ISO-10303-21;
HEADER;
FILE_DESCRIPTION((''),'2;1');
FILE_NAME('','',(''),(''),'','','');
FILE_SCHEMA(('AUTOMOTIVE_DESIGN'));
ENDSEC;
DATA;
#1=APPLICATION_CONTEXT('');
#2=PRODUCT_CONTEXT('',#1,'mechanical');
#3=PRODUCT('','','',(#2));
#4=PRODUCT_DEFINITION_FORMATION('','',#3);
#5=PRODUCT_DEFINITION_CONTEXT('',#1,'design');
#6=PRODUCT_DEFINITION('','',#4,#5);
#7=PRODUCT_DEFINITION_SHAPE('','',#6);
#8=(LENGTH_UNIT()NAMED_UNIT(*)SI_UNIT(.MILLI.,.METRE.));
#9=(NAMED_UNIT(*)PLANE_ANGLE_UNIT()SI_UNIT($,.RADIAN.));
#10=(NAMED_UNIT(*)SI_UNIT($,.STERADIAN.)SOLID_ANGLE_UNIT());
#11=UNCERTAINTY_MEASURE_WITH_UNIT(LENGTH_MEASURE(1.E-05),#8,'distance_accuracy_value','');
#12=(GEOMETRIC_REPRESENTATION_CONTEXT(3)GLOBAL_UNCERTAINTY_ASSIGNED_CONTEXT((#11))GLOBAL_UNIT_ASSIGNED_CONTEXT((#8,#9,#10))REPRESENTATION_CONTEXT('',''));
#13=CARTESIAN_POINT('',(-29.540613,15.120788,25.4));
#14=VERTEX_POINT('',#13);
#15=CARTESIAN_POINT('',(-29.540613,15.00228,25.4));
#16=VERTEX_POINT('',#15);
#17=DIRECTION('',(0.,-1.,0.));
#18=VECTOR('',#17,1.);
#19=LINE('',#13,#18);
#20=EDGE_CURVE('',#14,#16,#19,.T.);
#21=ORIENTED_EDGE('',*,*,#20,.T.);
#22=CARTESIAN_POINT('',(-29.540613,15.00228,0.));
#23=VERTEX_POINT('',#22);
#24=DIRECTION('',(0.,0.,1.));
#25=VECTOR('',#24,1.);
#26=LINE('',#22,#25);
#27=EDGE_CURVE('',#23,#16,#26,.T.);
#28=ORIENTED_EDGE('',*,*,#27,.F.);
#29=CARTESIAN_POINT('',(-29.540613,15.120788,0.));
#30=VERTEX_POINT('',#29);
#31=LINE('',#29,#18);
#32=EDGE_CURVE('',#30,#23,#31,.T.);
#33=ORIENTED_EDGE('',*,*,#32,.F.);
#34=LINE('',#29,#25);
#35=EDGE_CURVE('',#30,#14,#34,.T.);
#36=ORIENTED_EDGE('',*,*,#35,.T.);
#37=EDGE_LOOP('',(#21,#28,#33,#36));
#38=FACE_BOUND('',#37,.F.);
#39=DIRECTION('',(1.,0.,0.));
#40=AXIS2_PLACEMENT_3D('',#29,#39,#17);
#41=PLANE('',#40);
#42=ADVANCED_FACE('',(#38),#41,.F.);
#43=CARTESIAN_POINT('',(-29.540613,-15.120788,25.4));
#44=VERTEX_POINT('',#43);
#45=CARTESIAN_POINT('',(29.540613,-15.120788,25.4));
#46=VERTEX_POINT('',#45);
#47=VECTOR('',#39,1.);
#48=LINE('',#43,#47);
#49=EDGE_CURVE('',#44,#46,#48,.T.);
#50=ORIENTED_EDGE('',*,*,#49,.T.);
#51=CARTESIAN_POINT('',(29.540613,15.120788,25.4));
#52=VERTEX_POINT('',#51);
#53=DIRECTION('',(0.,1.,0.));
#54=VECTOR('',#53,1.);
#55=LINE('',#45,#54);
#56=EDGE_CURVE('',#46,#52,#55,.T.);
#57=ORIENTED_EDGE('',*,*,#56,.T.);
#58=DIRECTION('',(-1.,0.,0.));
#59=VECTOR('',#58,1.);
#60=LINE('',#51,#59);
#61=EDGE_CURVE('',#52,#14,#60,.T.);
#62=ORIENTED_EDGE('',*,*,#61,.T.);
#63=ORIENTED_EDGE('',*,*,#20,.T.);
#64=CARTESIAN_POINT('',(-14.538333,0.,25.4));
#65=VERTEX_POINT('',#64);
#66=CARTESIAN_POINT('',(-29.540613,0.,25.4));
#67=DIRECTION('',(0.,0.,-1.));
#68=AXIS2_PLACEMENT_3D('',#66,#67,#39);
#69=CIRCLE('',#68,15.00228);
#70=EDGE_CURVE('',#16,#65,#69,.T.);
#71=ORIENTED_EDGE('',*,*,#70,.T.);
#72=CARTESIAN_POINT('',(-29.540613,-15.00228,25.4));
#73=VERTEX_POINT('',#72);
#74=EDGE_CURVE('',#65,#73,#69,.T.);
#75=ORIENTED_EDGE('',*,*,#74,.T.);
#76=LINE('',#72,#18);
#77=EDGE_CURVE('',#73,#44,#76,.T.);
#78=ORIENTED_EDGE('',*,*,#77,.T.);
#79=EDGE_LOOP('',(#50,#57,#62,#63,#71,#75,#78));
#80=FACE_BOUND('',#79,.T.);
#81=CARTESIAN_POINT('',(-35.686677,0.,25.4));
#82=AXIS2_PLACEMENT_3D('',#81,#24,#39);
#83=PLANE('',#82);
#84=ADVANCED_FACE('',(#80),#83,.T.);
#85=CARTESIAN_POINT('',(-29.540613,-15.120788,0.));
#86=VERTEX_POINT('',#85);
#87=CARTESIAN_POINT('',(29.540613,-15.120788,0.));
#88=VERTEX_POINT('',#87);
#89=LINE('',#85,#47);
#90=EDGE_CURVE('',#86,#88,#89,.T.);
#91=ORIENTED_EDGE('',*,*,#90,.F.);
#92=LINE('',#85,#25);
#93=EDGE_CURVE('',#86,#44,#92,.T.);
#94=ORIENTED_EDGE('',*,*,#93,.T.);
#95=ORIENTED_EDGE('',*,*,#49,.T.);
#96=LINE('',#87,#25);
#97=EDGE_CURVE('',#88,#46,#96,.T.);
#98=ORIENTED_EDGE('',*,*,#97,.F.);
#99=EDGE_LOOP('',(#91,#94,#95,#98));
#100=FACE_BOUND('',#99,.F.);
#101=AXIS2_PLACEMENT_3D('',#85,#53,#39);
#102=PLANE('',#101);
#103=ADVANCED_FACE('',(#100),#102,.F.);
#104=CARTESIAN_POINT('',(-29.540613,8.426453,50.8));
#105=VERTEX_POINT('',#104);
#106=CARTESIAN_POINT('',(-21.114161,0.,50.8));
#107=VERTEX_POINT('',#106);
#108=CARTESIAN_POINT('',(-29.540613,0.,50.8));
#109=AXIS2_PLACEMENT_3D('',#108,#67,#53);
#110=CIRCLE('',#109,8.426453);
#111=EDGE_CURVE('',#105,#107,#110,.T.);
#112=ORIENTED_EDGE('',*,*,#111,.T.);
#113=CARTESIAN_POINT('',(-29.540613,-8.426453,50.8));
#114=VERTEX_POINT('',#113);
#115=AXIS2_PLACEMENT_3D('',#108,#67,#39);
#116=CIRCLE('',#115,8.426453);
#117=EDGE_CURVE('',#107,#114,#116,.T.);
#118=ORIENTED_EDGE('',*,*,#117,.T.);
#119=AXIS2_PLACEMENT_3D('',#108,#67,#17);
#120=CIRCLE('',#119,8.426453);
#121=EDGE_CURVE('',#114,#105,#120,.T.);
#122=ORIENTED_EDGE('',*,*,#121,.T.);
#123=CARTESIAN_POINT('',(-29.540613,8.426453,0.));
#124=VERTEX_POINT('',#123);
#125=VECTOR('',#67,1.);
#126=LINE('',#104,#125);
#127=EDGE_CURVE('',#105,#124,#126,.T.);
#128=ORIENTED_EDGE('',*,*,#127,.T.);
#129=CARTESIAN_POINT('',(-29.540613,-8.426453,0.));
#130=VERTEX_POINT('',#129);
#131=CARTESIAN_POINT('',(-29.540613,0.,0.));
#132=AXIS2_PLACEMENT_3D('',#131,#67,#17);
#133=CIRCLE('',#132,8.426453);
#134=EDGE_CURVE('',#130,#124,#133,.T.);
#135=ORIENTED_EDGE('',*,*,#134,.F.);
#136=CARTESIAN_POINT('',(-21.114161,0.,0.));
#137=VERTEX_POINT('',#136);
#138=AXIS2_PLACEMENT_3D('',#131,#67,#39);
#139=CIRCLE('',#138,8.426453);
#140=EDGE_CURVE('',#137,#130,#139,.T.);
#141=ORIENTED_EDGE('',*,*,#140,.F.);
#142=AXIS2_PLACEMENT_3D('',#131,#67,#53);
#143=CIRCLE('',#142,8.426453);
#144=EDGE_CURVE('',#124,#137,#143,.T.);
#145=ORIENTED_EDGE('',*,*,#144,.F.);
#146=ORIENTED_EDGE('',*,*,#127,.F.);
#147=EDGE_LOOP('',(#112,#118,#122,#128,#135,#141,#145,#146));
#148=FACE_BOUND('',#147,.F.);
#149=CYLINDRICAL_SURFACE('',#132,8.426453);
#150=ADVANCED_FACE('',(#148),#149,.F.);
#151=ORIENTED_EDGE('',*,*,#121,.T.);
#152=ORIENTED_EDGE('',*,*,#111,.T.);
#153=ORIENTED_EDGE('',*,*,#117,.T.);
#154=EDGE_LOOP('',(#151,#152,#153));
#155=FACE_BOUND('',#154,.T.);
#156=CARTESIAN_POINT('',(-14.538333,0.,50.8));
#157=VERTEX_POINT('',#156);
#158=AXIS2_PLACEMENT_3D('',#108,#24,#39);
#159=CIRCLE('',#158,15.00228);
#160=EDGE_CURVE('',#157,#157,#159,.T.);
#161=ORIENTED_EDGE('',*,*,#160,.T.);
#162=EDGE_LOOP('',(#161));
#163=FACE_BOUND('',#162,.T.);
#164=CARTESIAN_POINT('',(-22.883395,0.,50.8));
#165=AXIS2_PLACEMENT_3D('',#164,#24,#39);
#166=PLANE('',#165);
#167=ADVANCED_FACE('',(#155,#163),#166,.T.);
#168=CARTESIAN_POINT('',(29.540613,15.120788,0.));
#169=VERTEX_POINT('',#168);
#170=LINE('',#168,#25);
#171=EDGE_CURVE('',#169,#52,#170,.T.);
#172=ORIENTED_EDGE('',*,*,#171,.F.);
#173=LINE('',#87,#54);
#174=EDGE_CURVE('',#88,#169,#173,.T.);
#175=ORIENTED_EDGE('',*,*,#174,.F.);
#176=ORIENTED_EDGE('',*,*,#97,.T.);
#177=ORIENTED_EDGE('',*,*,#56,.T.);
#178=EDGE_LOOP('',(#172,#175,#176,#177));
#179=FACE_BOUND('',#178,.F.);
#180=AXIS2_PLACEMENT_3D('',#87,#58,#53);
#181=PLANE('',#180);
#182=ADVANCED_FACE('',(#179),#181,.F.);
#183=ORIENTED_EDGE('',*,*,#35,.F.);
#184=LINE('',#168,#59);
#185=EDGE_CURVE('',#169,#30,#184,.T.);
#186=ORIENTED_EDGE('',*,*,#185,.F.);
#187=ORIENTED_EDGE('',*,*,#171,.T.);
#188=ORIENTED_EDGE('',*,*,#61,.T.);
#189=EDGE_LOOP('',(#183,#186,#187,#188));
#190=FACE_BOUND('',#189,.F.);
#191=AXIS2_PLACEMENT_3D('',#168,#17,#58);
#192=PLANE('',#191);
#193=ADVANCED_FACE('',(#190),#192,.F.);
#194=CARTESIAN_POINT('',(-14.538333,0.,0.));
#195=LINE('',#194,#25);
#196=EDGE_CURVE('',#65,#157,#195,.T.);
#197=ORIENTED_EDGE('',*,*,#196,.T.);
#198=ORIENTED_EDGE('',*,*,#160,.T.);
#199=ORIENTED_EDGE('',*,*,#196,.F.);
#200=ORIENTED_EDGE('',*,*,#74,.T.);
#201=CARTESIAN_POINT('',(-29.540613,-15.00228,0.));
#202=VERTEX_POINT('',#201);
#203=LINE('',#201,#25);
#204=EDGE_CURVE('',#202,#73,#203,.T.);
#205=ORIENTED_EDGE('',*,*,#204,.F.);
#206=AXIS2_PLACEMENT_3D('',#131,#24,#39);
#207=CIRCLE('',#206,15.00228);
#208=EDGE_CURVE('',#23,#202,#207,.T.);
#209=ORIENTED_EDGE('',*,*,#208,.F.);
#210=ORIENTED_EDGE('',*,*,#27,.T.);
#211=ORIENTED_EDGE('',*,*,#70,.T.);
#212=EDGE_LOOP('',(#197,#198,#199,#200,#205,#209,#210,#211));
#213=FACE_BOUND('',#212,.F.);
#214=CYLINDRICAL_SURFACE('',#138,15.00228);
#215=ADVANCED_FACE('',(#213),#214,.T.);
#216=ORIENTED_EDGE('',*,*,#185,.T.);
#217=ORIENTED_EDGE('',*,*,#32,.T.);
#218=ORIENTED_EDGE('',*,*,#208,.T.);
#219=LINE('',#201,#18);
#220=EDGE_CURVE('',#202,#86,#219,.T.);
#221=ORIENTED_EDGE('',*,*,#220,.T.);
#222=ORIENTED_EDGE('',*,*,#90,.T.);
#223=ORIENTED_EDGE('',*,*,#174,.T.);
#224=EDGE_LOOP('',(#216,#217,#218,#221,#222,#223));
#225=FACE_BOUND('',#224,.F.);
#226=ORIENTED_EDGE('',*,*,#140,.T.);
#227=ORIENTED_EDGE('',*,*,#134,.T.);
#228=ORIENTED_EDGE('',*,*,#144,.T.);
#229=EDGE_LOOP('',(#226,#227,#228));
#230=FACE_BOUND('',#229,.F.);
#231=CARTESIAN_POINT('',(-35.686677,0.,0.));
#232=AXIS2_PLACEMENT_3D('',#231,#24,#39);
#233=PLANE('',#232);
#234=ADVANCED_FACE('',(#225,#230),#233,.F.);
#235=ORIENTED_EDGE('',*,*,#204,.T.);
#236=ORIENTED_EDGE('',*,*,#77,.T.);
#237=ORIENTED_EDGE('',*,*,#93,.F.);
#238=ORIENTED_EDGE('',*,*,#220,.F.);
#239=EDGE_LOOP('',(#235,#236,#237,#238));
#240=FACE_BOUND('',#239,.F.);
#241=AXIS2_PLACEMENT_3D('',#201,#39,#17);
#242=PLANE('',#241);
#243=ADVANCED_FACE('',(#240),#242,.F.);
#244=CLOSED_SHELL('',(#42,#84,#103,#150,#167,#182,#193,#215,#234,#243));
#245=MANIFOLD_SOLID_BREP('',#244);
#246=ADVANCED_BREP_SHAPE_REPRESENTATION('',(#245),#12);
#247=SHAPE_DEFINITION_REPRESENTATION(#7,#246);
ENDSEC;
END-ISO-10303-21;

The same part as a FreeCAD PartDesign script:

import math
import FreeCAD as App
import Part
import Sketcher

V = App.Vector
Q = App.Units.Quantity

doc = App.newDocument("Part")
body = doc.addObject("PartDesign::Body", "Body")

# Sketch on XY plane
sketch1 = body.newObject("Sketcher::SketchObject", "Sketch")
sketch1.AttachmentSupport = (doc.getObject("XY_Plane"), [""])
sketch1.MapMode = "FlatFace"
sketch1.addGeometry([
    Part.ArcOfCircle(Part.Circle(V(-29.54, 0, 0), V(0, 0, 1), 15), math.radians(90), math.radians(270)),  # 0
    Part.LineSegment(V(-29.54, -15, 0), V(-29.54, -15.12, 0)),  # 1
    Part.LineSegment(V(-29.54, -15.12, 0), V(29.54, -15.12, 0)),  # 2
    Part.LineSegment(V(29.54, -15.12, 0), V(29.54, 15.12, 0)),  # 3
    Part.LineSegment(V(29.54, 15.12, 0), V(-29.54, 15.12, 0)),  # 4
    Part.LineSegment(V(-29.54, 15.12, 0), V(-29.54, 15, 0)),  # 5
    Part.ArcOfCircle(Part.Circle(V(-29.54, 0, 0), V(0, 0, 1), 8.43), math.radians(90), math.radians(270)),  # 6
    Part.ArcOfCircle(Part.Circle(V(-29.54, 0, 0), V(0, 0, 1), 8.43), math.radians(0), math.radians(90)),  # 7
    Part.ArcOfCircle(Part.Circle(V(-29.54, 0, 0), V(0, 0, 1), 8.43), math.radians(-90), math.radians(0)),  # 8
], False)
sketch1.addConstraint([
    Sketcher.Constraint("Coincident", 0, 2, 1, 1),
    Sketcher.Constraint("Coincident", 1, 2, 2, 1),
    Sketcher.Constraint("Coincident", 2, 2, 3, 1),
    Sketcher.Constraint("Coincident", 3, 2, 4, 1),
    Sketcher.Constraint("Coincident", 4, 2, 5, 1),
    Sketcher.Constraint("Coincident", 5, 2, 0, 1),
    Sketcher.Constraint("Tangent", 6, 1, 7, 2),
    Sketcher.Constraint("Tangent", 7, 1, 8, 2),
    Sketcher.Constraint("Tangent", 8, 1, 6, 2),
    Sketcher.Constraint("Vertical", 1),
    Sketcher.Constraint("Horizontal", 2),
    Sketcher.Constraint("Vertical", 3),
    Sketcher.Constraint("Horizontal", 4),
    Sketcher.Constraint("Vertical", 5),
    Sketcher.Constraint("Coincident", 6, 3, 0, 3),
    Sketcher.Constraint("Symmetric", 1, 2, 3, 2, -1, 1),
    Sketcher.Constraint("Symmetric", 0, 2, 5, 2, -1),
    Sketcher.Constraint("PointOnObject", 7, 1, -1),
    Sketcher.Constraint("Vertical", 8, 3, 0, 2),
    Sketcher.Constraint("Vertical", 5, 2, 6, 1),
    Sketcher.Constraint("Vertical", 6, 1, 8, 1),
    Sketcher.Constraint("Radius", 0, 15.00228),
    Sketcher.Constraint("Radius", 6, 8.426453),
    Sketcher.Constraint("DistanceY", 1, 2, 1, 1, 0.118508),
    Sketcher.Constraint("DistanceX", 2, 1, 2, 2, 59.081227),
])
pad1 = body.newObject("PartDesign::Pad", "Pad")
pad1.Profile = sketch1
pad1.Length = Q("1 in")

# Sketch on XY plane
sketch2 = body.newObject("Sketcher::SketchObject", "Sketch001")
sketch2.AttachmentSupport = (doc.getObject("XY_Plane"), [""])
sketch2.MapMode = "FlatFace"
sketch2.addGeometry([
    Part.Circle(V(-30, 0, 0), V(0, 0, 1), 15),
    Part.ArcOfCircle(Part.Circle(V(-30, 0, 0), V(0, 0, 1), 8), math.radians(0), math.radians(90)),
    Part.ArcOfCircle(Part.Circle(V(-30, 0, 0), V(0, 0, 1), 8), math.radians(-90), math.radians(0)),
    Part.ArcOfCircle(Part.Circle(V(-30, 0, 0), V(0, 0, 1), 8), math.radians(90), math.radians(270)),
], False)
sketch2.addConstraint([
    Sketcher.Constraint("Tangent", 1, 1, 2, 2),
    Sketcher.Constraint("Tangent", 2, 1, 3, 2),
    Sketcher.Constraint("Tangent", 3, 1, 1, 2),
    Sketcher.Constraint("Coincident", 1, 3, 0, 3),
    Sketcher.Constraint("Symmetric", 2, 1, 3, 1, -1),
    Sketcher.Constraint("PointOnObject", 1, 1, -1),
    Sketcher.Constraint("Vertical", 3, 3, 2, 1),
    Sketcher.Constraint("Diameter", 0, 30.004561),
    Sketcher.Constraint("Radius", 1, 8.426453),
    Sketcher.Constraint("DistanceX", 1, 1, -1, 1, 21.114161),
])
pad2 = body.newObject("PartDesign::Pad", "Pad001")
pad2.Profile = sketch2
pad2.Length = Q("2 in")

doc.recompute()
